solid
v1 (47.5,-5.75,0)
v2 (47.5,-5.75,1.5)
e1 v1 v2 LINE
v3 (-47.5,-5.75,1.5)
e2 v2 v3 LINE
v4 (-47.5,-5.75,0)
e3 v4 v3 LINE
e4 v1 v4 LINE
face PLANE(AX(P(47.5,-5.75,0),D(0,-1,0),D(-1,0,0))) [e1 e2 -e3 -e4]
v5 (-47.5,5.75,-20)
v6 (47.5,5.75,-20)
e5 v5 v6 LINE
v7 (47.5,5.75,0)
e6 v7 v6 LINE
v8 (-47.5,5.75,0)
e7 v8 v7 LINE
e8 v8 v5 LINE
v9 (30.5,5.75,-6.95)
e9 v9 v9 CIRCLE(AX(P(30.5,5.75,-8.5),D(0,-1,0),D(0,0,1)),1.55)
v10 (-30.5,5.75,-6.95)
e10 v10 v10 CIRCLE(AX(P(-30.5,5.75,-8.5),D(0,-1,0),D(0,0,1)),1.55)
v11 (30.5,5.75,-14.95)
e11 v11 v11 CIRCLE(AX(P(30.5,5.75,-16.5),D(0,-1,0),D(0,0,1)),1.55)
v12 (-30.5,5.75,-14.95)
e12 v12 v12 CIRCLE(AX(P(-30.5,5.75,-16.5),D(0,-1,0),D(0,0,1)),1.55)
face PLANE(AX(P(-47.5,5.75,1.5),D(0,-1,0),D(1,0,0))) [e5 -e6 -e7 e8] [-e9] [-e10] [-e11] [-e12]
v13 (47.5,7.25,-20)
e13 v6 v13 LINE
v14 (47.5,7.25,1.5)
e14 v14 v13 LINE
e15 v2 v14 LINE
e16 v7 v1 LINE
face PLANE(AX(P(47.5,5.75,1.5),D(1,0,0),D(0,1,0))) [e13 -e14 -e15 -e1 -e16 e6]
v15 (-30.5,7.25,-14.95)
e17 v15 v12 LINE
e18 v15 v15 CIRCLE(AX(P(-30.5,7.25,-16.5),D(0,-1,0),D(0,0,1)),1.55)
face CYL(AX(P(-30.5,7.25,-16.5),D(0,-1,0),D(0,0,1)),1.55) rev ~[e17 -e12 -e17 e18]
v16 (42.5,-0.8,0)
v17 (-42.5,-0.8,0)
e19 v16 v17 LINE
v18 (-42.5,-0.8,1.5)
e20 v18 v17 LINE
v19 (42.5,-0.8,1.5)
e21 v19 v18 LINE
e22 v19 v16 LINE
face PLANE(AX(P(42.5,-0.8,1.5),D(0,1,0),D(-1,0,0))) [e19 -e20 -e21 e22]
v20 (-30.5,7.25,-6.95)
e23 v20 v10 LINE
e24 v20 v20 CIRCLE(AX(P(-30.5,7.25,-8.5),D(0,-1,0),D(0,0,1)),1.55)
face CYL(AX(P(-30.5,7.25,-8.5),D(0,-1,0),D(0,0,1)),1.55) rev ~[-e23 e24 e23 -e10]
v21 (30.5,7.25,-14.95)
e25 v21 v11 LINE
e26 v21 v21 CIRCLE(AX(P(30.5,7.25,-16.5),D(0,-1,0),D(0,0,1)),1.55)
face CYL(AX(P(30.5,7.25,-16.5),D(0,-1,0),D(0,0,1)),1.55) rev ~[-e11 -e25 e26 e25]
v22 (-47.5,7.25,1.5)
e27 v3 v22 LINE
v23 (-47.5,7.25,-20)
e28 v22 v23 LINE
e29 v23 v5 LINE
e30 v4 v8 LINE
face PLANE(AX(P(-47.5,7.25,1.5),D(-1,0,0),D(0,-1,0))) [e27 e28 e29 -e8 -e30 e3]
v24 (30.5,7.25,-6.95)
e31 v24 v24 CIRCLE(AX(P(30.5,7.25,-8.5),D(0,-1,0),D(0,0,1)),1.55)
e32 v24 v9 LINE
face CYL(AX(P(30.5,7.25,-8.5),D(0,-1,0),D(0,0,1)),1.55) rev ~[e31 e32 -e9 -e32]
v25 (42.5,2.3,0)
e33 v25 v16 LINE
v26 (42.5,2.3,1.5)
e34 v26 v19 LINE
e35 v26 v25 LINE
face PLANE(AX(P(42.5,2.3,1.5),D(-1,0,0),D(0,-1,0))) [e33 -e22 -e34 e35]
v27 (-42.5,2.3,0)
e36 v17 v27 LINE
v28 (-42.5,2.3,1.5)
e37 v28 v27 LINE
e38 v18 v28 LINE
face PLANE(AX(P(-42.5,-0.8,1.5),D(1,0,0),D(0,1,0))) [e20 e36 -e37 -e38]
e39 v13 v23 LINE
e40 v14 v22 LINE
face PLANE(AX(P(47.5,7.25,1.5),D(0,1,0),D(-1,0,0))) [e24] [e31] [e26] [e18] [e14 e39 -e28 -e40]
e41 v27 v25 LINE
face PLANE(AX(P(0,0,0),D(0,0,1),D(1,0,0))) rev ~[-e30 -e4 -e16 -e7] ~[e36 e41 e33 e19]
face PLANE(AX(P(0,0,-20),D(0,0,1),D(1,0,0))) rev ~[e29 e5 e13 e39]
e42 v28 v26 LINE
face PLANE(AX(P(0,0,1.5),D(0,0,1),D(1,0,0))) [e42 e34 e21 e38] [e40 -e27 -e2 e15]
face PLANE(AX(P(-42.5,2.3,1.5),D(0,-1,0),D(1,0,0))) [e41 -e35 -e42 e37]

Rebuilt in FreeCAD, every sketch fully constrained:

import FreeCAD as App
import Part
import Sketcher
Q = App.Units.Quantity


def add_polygon(sketch, points):
    """Adds a closed chain of lines whose ends are joined by coincident constraints."""
    first, n = sketch.GeometryCount, len(points)
    for a, b in zip(points, points[1:] + points[:1]):
        sketch.addGeometry(Part.LineSegment(App.Vector(*a, 0), App.Vector(*b, 0)), False)
    for i in range(n):
        sketch.addConstraint(Sketcher.Constraint("Coincident", first + i, 2, first + (i + 1) % n, 1))

doc = App.newDocument("Part")
params = doc.addObject("Spreadsheet::Sheet", "Params")
for row, (alias, value) in enumerate([
    ("sketch1_width", "95 mm"),
    ("sketch1_height", "11.5 mm"),
    ("pad1_length", "1.5 mm"),
    ("sketch2_width", "85 mm"),
    ("sketch2_height", "3.1 mm"),
    ("pocket1_length", "1.5 mm"),
    ("sketch3_width", "95 mm"),
    ("sketch3_height", "1.5 mm"),
    ("pad2_length", "21.5 mm"),
    ("sketch4_diameter", "3.1 mm"),
    ("hole_diameter", "3.1 mm"),
], start=1):
    params.set(f"A{row}", alias)
    params.set(f"B{row}", "=" + value)
    params.setAlias(f"B{row}", alias)

body = doc.addObject("PartDesign::Body", "Body")

# Sketch on XY plane
sketch1 = doc.addObject("Sketcher::SketchObject", "Sketch")
body.addObject(sketch1)
sketch1.AttachmentSupport = (doc.XY_Plane, [""])
sketch1.MapMode = "FlatFace"
add_polygon(sketch1, [(48, 6), (-48, 6), (-48, -6), (48, -6)])  # lines 0-3
sketch1.addConstraint(Sketcher.Constraint("Horizontal", 0))
sketch1.addConstraint(Sketcher.Constraint("Vertical", 1))
sketch1.addConstraint(Sketcher.Constraint("Horizontal", 2))
sketch1.addConstraint(Sketcher.Constraint("Vertical", 3))
sketch1.addConstraint(Sketcher.Constraint("Symmetric", 0, 2, 2, 2, -1, 1))
sketch1.addConstraint(Sketcher.Constraint("DistanceX", 0, 2, 0, 1, Q("95 mm")))
sketch1.addConstraint(Sketcher.Constraint("DistanceY", 1, 2, 1, 1, Q("11.5 mm")))
sketch1.setExpression("Constraints[9]", "Params.sketch1_width")
sketch1.setExpression("Constraints[10]", "Params.sketch1_height")
pad1 = doc.addObject("PartDesign::Pad", "Pad")
body.addObject(pad1)
pad1.Profile = sketch1
pad1.setExpression("Length", "Params.pad1_length")

# Sketch on XY plane
sketch2 = doc.addObject("Sketcher::SketchObject", "Sketch001")
body.addObject(sketch2)
sketch2.AttachmentSupport = (doc.XY_Plane, [""])
sketch2.MapMode = "FlatFace"
sketch2.AttachmentOffset = App.Placement(App.Vector(0, 0, 1.5), App.Rotation())
add_polygon(sketch2, [(42.5, 2.3), (-42.5, 2.3), (-42.5, -0.8), (42.5, -0.8)])  # lines 0-3
sketch2.addConstraint(Sketcher.Constraint("Horizontal", 0))
sketch2.addConstraint(Sketcher.Constraint("Vertical", 1))
sketch2.addConstraint(Sketcher.Constraint("Horizontal", 2))
sketch2.addConstraint(Sketcher.Constraint("Vertical", 3))
sketch2.addConstraint(Sketcher.Constraint("DistanceX", 0, 2, 0, 1, Q("85 mm")))
sketch2.addConstraint(Sketcher.Constraint("DistanceY", 1, 2, 1, 1, Q("3.1 mm")))
sketch2.addConstraint(Sketcher.Constraint("DistanceX", 0, 2, -1, 1, Q("42.5 mm")))
sketch2.addConstraint(Sketcher.Constraint("DistanceY", -1, 1, 0, 2, Q("2.3 mm")))
sketch2.setExpression("Constraints[8]", "Params.sketch2_width")
sketch2.setExpression("Constraints[9]", "Params.sketch2_height")
pocket1 = doc.addObject("PartDesign::Pocket", "Pocket")
body.addObject(pocket1)
pocket1.Profile = sketch2
pocket1.setExpression("Length", "Params.pocket1_length")

# Sketch on XY plane
sketch3 = doc.addObject("Sketcher::SketchObject", "Sketch002")
body.addObject(sketch3)
sketch3.AttachmentSupport = (doc.XY_Plane, [""])
sketch3.MapMode = "FlatFace"
sketch3.AttachmentOffset = App.Placement(App.Vector(0, 0, 1.5), App.Rotation())
add_polygon(sketch3, [(-47.5, 7.2), (-47.5, 5.8), (47.5, 5.8), (47.5, 7.2)])  # lines 0-3
sketch3.addConstraint(Sketcher.Constraint("Vertical", 0))
sketch3.addConstraint(Sketcher.Constraint("Horizontal", 1))
sketch3.addConstraint(Sketcher.Constraint("Vertical", 2))
sketch3.addConstraint(Sketcher.Constraint("Horizontal", 3))
sketch3.addConstraint(Sketcher.Constraint("DistanceX", 1, 1, 1, 2, Q("95 mm")))
sketch3.addConstraint(Sketcher.Constraint("DistanceY", 0, 2, 0, 1, Q("1.5 mm")))
sketch3.addConstraint(Sketcher.Constraint("DistanceX", 0, 2, -1, 1, Q("47.5 mm")))
sketch3.addConstraint(Sketcher.Constraint("DistanceY", -1, 1, 0, 2, Q("5.75 mm")))
sketch3.setExpression("Constraints[8]", "Params.sketch3_width")
sketch3.setExpression("Constraints[9]", "Params.sketch3_height")
pad2 = doc.addObject("PartDesign::Pad", "Pad001")
body.addObject(pad2)
pad2.Profile = sketch3
pad2.setExpression("Length", "Params.pad2_length")
pad2.Reversed = True

# Sketch on XZ plane
sketch4 = doc.addObject("Sketcher::SketchObject", "Sketch003")
body.addObject(sketch4)
sketch4.AttachmentSupport = (doc.XZ_Plane, [""])
sketch4.MapMode = "FlatFace"
sketch4.AttachmentOffset = App.Placement(App.Vector(0, 0, -7.25), App.Rotation())
sketch4.addGeometry(Part.Circle(App.Vector(-30.5, -8.5, 0), App.Vector(0, 0, 1), 1.6), False)
sketch4.addGeometry(Part.Circle(App.Vector(30.5, -8.5, 0), App.Vector(0, 0, 1), 1.6), False)
sketch4.addGeometry(Part.Circle(App.Vector(-30.5, -16.5, 0), App.Vector(0, 0, 1), 1.6), False)
sketch4.addGeometry(Part.Circle(App.Vector(30.5, -16.5, 0), App.Vector(0, 0, 1), 1.6), False)
sketch4.addConstraint(Sketcher.Constraint("Equal", 0, 1))
sketch4.addConstraint(Sketcher.Constraint("Equal", 1, 2))
sketch4.addConstraint(Sketcher.Constraint("Equal", 2, 3))
sketch4.addConstraint(Sketcher.Constraint("Symmetric", 0, 3, 1, 3, -2))
sketch4.addConstraint(Sketcher.Constraint("Symmetric", 2, 3, 3, 3, -2))
sketch4.addConstraint(Sketcher.Constraint("Vertical", 0, 3, 2, 3))
sketch4.addConstraint(Sketcher.Constraint("Diameter", 0, Q("3.1 mm")))
sketch4.addConstraint(Sketcher.Constraint("DistanceX", 0, 3, 1, 3, Q("61 mm")))
sketch4.addConstraint(Sketcher.Constraint("DistanceY", 2, 3, 0, 3, Q("8 mm")))
sketch4.addConstraint(Sketcher.Constraint("DistanceY", 0, 3, -1, 1, Q("8.5 mm")))
sketch4.setExpression("Constraints[6]", "Params.sketch4_diameter")
doc.recompute()
hole = doc.addObject("PartDesign::Hole", "Hole")
body.addObject(hole)
hole.Profile = sketch4
hole.ThreadType = "None"
hole.setExpression("Diameter", "Params.hole_diameter")
hole.DepthType = "ThroughAll"
hole.Reversed = True

doc.recompute()
